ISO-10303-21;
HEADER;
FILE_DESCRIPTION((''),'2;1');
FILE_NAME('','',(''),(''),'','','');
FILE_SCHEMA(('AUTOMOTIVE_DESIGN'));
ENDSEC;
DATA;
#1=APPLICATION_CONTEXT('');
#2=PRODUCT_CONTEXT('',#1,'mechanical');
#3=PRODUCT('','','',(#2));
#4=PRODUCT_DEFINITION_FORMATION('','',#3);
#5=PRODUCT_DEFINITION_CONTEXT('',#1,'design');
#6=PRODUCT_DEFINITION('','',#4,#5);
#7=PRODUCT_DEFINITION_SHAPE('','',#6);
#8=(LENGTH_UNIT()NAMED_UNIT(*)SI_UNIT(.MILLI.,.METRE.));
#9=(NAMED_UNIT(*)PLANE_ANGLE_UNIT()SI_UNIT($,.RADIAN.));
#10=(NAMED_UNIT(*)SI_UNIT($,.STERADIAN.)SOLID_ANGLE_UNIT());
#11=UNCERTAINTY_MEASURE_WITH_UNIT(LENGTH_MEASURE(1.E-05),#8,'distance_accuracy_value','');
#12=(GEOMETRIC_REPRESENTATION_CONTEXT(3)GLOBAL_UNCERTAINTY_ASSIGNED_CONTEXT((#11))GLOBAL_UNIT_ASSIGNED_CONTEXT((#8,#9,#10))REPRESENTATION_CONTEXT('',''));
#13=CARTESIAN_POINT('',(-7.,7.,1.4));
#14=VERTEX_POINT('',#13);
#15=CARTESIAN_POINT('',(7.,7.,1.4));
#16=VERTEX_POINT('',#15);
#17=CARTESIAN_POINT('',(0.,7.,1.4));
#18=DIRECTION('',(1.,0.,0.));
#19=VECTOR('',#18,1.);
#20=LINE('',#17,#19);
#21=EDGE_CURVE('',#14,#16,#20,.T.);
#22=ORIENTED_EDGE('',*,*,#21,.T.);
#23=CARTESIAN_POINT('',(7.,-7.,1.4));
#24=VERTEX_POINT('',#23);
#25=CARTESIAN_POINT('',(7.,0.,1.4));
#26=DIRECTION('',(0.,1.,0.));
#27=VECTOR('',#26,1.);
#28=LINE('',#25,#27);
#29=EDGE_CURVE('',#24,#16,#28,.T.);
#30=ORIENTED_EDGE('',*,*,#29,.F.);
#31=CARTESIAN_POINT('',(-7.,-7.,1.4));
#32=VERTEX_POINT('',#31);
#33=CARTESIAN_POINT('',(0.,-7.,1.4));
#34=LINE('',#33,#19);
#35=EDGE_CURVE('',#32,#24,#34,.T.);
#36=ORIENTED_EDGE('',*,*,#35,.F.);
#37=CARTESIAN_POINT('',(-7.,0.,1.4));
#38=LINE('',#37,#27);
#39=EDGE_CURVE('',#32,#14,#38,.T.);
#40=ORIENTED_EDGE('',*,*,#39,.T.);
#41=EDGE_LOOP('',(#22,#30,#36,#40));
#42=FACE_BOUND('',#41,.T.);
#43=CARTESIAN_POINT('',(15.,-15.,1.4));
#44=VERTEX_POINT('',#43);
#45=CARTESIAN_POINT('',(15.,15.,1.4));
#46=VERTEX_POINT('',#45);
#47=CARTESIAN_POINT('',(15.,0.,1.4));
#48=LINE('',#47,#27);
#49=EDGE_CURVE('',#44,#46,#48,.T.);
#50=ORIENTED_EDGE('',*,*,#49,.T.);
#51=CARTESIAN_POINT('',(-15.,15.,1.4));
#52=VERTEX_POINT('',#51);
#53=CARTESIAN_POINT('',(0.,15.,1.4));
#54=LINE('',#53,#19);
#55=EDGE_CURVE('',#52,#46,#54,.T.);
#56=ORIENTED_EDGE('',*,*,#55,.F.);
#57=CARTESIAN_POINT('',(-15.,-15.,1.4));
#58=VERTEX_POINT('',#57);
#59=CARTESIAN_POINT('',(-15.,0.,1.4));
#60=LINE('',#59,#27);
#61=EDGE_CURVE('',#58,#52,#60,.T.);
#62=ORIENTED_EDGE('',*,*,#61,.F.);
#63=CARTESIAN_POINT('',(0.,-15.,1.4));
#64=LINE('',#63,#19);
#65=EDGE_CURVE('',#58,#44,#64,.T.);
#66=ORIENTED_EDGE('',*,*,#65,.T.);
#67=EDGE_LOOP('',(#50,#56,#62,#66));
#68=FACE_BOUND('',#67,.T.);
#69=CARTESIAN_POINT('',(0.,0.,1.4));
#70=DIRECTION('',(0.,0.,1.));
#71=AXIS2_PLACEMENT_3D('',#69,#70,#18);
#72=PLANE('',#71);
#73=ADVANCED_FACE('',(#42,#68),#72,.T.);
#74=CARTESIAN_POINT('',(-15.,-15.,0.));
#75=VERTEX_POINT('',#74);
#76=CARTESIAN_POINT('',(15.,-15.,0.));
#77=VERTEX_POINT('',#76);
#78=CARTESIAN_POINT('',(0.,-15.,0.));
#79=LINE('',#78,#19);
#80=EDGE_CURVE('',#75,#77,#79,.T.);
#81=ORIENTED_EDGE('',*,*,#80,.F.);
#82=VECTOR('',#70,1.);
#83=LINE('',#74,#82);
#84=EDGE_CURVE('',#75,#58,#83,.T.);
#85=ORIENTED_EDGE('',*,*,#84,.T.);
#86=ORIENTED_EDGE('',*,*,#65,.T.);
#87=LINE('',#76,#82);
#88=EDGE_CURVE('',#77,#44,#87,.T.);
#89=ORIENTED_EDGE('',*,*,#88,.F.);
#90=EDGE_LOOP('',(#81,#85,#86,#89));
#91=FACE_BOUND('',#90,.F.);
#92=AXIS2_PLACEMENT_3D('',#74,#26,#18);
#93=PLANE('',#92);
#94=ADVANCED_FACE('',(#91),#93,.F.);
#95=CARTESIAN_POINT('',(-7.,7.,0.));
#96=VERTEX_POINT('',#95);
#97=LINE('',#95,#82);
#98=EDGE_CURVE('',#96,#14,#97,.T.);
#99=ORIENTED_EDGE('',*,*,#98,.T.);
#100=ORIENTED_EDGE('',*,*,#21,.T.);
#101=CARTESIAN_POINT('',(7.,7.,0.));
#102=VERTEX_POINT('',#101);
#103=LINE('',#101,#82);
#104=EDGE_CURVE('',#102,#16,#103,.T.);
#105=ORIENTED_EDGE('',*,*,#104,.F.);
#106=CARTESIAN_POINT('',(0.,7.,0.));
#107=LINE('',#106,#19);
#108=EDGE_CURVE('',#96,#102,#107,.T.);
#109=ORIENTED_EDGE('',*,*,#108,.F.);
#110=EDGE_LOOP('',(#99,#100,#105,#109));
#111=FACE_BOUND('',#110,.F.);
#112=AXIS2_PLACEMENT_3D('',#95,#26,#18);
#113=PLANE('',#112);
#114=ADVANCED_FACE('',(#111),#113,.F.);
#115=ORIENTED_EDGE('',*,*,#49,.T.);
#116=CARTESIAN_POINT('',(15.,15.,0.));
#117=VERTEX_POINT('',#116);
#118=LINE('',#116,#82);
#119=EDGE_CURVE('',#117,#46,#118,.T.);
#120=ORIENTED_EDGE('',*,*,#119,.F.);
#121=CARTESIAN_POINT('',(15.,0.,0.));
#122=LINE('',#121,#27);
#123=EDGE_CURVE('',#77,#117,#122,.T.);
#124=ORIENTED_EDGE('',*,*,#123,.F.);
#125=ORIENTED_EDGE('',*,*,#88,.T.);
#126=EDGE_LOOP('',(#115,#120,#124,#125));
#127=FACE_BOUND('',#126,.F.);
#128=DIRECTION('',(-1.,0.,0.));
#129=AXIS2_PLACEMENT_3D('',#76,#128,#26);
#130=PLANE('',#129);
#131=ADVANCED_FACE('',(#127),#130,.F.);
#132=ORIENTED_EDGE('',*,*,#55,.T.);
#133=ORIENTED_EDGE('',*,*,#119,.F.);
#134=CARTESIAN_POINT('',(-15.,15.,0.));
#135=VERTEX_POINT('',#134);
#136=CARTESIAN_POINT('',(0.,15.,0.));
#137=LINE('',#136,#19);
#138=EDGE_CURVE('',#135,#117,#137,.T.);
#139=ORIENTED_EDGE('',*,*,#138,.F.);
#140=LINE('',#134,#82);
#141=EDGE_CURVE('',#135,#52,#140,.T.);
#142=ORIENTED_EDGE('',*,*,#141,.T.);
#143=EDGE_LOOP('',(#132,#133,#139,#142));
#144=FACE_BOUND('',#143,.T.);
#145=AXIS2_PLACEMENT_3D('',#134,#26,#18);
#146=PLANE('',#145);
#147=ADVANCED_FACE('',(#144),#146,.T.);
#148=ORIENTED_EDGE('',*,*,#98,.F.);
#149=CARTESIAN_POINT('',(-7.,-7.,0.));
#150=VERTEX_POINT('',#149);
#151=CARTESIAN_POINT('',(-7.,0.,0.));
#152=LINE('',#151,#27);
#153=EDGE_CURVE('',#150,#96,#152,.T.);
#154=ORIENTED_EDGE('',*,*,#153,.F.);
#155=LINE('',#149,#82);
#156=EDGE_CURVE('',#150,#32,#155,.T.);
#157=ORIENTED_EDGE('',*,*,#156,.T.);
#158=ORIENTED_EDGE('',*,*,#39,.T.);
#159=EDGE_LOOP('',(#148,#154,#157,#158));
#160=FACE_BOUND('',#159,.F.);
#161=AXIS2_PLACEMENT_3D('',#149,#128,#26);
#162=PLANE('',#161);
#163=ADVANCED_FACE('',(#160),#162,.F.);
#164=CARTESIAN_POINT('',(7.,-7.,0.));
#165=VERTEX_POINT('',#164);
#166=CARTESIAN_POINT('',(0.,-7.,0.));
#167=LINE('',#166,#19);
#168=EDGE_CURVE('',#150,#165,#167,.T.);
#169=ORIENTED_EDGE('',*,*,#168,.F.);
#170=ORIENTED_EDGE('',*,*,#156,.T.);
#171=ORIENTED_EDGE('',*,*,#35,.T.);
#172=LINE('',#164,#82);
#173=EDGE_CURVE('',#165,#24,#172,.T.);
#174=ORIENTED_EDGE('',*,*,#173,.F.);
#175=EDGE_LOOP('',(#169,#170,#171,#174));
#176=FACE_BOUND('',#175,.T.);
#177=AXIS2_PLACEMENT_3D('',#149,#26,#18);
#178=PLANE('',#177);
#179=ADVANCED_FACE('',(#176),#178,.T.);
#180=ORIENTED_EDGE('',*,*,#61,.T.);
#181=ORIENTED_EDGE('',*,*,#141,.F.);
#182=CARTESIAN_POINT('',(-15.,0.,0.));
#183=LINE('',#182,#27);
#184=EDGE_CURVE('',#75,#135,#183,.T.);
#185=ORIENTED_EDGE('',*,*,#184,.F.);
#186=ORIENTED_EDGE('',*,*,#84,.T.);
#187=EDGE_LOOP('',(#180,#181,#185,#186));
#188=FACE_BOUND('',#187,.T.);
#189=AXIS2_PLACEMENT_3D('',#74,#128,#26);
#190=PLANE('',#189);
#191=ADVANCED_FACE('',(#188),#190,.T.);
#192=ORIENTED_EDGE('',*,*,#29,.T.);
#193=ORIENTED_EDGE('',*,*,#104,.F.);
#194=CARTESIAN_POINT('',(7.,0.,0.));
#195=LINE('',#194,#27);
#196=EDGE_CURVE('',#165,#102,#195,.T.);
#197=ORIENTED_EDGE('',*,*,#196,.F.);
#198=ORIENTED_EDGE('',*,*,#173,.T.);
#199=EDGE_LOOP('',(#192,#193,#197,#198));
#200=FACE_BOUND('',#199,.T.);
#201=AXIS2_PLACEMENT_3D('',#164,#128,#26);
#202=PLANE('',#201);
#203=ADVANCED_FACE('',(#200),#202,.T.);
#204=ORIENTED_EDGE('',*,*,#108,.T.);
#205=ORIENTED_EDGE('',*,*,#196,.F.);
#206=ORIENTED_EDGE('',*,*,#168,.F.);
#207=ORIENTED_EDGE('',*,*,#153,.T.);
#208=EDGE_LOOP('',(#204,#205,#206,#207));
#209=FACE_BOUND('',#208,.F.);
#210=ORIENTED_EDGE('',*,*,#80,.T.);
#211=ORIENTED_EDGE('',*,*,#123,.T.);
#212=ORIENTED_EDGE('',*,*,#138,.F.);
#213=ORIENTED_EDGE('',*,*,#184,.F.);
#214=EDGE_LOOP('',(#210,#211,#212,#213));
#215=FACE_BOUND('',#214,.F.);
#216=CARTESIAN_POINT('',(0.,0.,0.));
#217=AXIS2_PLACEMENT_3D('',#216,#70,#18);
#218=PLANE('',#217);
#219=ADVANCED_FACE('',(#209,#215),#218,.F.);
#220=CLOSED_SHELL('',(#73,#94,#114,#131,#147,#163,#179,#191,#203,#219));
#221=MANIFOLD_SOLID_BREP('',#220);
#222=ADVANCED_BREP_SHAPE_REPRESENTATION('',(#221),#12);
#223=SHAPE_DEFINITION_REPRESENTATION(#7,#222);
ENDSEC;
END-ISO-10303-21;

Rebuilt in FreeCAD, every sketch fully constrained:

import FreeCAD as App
import Part
import Sketcher
from FreeCAD import Vector
Q = App.Units.Quantity


def add_polygon(sketch, points):
    """Adds a closed chain of lines whose ends are joined by coincident constraints."""
    first, n = sketch.GeometryCount, len(points)
    for a, b in zip(points, points[1:] + points[:1]):
        sketch.addGeometry(Part.LineSegment(App.Vector(*a, 0), App.Vector(*b, 0)), False)
    for i in range(n):
        sketch.addConstraint(Sketcher.Constraint("Coincident", first + i, 2, first + (i + 1) % n, 1))

doc = App.newDocument("Part")
params = doc.addObject("Spreadsheet::Sheet", "Params")
for row, (alias, value) in enumerate([
    ("sketch1_width", "30 mm"),
    ("sketch1_width2", "14 mm"),
    ("pad1_length", "1.4 mm"),
], start=1):
    params.set(f"A{row}", alias)
    params.set(f"B{row}", "=" + value)
    params.setAlias(f"B{row}", alias)

body = doc.addObject("PartDesign::Body", "Body")

# Sketch on XY plane
sketch1 = body.newObject("Sketcher::SketchObject", "Sketch")
sketch1.AttachmentSupport = (doc.getObject("XY_Plane"), [""])
sketch1.MapMode = "FlatFace"
add_polygon(sketch1, [(-15, 15), (-15, -15), (15, -15), (15, 15)])  # lines 0-3
add_polygon(sketch1, [(7, -7), (-7, -7), (-7, 7), (7, 7)])  # lines 4-7
sketch1.addConstraint(Sketcher.Constraint("Vertical", 0))
sketch1.addConstraint(Sketcher.Constraint("Horizontal", 1))
sketch1.addConstraint(Sketcher.Constraint("Vertical", 2))
sketch1.addConstraint(Sketcher.Constraint("Horizontal", 3))
sketch1.addConstraint(Sketcher.Constraint("Horizontal", 4))
sketch1.addConstraint(Sketcher.Constraint("Vertical", 5))
sketch1.addConstraint(Sketcher.Constraint("Horizontal", 6))
sketch1.addConstraint(Sketcher.Constraint("Vertical", 7))
sketch1.addConstraint(Sketcher.Constraint("Symmetric", 0, 2, 2, 2, -1, 1))
sketch1.addConstraint(Sketcher.Constraint("Symmetric", 4, 2, 6, 2, -1, 1))
sketch1.addConstraint(Sketcher.Constraint("Equal", 3, 0))
sketch1.addConstraint(Sketcher.Constraint("Equal", 6, 5))
sketch1.addConstraint(Sketcher.Constraint("DistanceX", 1, 1, 1, 2, Q("30 mm")))
sketch1.addConstraint(Sketcher.Constraint("DistanceX", 4, 2, 4, 1, Q("14 mm")))
sketch1.setExpression("Constraints[20]", "Params.sketch1_width")
sketch1.setExpression("Constraints[21]", "Params.sketch1_width2")
pad1 = body.newObject("PartDesign::Pad", "Pad")
pad1.Profile = sketch1
pad1.setExpression("Length", "Params.pad1_length")

doc.recompute()
